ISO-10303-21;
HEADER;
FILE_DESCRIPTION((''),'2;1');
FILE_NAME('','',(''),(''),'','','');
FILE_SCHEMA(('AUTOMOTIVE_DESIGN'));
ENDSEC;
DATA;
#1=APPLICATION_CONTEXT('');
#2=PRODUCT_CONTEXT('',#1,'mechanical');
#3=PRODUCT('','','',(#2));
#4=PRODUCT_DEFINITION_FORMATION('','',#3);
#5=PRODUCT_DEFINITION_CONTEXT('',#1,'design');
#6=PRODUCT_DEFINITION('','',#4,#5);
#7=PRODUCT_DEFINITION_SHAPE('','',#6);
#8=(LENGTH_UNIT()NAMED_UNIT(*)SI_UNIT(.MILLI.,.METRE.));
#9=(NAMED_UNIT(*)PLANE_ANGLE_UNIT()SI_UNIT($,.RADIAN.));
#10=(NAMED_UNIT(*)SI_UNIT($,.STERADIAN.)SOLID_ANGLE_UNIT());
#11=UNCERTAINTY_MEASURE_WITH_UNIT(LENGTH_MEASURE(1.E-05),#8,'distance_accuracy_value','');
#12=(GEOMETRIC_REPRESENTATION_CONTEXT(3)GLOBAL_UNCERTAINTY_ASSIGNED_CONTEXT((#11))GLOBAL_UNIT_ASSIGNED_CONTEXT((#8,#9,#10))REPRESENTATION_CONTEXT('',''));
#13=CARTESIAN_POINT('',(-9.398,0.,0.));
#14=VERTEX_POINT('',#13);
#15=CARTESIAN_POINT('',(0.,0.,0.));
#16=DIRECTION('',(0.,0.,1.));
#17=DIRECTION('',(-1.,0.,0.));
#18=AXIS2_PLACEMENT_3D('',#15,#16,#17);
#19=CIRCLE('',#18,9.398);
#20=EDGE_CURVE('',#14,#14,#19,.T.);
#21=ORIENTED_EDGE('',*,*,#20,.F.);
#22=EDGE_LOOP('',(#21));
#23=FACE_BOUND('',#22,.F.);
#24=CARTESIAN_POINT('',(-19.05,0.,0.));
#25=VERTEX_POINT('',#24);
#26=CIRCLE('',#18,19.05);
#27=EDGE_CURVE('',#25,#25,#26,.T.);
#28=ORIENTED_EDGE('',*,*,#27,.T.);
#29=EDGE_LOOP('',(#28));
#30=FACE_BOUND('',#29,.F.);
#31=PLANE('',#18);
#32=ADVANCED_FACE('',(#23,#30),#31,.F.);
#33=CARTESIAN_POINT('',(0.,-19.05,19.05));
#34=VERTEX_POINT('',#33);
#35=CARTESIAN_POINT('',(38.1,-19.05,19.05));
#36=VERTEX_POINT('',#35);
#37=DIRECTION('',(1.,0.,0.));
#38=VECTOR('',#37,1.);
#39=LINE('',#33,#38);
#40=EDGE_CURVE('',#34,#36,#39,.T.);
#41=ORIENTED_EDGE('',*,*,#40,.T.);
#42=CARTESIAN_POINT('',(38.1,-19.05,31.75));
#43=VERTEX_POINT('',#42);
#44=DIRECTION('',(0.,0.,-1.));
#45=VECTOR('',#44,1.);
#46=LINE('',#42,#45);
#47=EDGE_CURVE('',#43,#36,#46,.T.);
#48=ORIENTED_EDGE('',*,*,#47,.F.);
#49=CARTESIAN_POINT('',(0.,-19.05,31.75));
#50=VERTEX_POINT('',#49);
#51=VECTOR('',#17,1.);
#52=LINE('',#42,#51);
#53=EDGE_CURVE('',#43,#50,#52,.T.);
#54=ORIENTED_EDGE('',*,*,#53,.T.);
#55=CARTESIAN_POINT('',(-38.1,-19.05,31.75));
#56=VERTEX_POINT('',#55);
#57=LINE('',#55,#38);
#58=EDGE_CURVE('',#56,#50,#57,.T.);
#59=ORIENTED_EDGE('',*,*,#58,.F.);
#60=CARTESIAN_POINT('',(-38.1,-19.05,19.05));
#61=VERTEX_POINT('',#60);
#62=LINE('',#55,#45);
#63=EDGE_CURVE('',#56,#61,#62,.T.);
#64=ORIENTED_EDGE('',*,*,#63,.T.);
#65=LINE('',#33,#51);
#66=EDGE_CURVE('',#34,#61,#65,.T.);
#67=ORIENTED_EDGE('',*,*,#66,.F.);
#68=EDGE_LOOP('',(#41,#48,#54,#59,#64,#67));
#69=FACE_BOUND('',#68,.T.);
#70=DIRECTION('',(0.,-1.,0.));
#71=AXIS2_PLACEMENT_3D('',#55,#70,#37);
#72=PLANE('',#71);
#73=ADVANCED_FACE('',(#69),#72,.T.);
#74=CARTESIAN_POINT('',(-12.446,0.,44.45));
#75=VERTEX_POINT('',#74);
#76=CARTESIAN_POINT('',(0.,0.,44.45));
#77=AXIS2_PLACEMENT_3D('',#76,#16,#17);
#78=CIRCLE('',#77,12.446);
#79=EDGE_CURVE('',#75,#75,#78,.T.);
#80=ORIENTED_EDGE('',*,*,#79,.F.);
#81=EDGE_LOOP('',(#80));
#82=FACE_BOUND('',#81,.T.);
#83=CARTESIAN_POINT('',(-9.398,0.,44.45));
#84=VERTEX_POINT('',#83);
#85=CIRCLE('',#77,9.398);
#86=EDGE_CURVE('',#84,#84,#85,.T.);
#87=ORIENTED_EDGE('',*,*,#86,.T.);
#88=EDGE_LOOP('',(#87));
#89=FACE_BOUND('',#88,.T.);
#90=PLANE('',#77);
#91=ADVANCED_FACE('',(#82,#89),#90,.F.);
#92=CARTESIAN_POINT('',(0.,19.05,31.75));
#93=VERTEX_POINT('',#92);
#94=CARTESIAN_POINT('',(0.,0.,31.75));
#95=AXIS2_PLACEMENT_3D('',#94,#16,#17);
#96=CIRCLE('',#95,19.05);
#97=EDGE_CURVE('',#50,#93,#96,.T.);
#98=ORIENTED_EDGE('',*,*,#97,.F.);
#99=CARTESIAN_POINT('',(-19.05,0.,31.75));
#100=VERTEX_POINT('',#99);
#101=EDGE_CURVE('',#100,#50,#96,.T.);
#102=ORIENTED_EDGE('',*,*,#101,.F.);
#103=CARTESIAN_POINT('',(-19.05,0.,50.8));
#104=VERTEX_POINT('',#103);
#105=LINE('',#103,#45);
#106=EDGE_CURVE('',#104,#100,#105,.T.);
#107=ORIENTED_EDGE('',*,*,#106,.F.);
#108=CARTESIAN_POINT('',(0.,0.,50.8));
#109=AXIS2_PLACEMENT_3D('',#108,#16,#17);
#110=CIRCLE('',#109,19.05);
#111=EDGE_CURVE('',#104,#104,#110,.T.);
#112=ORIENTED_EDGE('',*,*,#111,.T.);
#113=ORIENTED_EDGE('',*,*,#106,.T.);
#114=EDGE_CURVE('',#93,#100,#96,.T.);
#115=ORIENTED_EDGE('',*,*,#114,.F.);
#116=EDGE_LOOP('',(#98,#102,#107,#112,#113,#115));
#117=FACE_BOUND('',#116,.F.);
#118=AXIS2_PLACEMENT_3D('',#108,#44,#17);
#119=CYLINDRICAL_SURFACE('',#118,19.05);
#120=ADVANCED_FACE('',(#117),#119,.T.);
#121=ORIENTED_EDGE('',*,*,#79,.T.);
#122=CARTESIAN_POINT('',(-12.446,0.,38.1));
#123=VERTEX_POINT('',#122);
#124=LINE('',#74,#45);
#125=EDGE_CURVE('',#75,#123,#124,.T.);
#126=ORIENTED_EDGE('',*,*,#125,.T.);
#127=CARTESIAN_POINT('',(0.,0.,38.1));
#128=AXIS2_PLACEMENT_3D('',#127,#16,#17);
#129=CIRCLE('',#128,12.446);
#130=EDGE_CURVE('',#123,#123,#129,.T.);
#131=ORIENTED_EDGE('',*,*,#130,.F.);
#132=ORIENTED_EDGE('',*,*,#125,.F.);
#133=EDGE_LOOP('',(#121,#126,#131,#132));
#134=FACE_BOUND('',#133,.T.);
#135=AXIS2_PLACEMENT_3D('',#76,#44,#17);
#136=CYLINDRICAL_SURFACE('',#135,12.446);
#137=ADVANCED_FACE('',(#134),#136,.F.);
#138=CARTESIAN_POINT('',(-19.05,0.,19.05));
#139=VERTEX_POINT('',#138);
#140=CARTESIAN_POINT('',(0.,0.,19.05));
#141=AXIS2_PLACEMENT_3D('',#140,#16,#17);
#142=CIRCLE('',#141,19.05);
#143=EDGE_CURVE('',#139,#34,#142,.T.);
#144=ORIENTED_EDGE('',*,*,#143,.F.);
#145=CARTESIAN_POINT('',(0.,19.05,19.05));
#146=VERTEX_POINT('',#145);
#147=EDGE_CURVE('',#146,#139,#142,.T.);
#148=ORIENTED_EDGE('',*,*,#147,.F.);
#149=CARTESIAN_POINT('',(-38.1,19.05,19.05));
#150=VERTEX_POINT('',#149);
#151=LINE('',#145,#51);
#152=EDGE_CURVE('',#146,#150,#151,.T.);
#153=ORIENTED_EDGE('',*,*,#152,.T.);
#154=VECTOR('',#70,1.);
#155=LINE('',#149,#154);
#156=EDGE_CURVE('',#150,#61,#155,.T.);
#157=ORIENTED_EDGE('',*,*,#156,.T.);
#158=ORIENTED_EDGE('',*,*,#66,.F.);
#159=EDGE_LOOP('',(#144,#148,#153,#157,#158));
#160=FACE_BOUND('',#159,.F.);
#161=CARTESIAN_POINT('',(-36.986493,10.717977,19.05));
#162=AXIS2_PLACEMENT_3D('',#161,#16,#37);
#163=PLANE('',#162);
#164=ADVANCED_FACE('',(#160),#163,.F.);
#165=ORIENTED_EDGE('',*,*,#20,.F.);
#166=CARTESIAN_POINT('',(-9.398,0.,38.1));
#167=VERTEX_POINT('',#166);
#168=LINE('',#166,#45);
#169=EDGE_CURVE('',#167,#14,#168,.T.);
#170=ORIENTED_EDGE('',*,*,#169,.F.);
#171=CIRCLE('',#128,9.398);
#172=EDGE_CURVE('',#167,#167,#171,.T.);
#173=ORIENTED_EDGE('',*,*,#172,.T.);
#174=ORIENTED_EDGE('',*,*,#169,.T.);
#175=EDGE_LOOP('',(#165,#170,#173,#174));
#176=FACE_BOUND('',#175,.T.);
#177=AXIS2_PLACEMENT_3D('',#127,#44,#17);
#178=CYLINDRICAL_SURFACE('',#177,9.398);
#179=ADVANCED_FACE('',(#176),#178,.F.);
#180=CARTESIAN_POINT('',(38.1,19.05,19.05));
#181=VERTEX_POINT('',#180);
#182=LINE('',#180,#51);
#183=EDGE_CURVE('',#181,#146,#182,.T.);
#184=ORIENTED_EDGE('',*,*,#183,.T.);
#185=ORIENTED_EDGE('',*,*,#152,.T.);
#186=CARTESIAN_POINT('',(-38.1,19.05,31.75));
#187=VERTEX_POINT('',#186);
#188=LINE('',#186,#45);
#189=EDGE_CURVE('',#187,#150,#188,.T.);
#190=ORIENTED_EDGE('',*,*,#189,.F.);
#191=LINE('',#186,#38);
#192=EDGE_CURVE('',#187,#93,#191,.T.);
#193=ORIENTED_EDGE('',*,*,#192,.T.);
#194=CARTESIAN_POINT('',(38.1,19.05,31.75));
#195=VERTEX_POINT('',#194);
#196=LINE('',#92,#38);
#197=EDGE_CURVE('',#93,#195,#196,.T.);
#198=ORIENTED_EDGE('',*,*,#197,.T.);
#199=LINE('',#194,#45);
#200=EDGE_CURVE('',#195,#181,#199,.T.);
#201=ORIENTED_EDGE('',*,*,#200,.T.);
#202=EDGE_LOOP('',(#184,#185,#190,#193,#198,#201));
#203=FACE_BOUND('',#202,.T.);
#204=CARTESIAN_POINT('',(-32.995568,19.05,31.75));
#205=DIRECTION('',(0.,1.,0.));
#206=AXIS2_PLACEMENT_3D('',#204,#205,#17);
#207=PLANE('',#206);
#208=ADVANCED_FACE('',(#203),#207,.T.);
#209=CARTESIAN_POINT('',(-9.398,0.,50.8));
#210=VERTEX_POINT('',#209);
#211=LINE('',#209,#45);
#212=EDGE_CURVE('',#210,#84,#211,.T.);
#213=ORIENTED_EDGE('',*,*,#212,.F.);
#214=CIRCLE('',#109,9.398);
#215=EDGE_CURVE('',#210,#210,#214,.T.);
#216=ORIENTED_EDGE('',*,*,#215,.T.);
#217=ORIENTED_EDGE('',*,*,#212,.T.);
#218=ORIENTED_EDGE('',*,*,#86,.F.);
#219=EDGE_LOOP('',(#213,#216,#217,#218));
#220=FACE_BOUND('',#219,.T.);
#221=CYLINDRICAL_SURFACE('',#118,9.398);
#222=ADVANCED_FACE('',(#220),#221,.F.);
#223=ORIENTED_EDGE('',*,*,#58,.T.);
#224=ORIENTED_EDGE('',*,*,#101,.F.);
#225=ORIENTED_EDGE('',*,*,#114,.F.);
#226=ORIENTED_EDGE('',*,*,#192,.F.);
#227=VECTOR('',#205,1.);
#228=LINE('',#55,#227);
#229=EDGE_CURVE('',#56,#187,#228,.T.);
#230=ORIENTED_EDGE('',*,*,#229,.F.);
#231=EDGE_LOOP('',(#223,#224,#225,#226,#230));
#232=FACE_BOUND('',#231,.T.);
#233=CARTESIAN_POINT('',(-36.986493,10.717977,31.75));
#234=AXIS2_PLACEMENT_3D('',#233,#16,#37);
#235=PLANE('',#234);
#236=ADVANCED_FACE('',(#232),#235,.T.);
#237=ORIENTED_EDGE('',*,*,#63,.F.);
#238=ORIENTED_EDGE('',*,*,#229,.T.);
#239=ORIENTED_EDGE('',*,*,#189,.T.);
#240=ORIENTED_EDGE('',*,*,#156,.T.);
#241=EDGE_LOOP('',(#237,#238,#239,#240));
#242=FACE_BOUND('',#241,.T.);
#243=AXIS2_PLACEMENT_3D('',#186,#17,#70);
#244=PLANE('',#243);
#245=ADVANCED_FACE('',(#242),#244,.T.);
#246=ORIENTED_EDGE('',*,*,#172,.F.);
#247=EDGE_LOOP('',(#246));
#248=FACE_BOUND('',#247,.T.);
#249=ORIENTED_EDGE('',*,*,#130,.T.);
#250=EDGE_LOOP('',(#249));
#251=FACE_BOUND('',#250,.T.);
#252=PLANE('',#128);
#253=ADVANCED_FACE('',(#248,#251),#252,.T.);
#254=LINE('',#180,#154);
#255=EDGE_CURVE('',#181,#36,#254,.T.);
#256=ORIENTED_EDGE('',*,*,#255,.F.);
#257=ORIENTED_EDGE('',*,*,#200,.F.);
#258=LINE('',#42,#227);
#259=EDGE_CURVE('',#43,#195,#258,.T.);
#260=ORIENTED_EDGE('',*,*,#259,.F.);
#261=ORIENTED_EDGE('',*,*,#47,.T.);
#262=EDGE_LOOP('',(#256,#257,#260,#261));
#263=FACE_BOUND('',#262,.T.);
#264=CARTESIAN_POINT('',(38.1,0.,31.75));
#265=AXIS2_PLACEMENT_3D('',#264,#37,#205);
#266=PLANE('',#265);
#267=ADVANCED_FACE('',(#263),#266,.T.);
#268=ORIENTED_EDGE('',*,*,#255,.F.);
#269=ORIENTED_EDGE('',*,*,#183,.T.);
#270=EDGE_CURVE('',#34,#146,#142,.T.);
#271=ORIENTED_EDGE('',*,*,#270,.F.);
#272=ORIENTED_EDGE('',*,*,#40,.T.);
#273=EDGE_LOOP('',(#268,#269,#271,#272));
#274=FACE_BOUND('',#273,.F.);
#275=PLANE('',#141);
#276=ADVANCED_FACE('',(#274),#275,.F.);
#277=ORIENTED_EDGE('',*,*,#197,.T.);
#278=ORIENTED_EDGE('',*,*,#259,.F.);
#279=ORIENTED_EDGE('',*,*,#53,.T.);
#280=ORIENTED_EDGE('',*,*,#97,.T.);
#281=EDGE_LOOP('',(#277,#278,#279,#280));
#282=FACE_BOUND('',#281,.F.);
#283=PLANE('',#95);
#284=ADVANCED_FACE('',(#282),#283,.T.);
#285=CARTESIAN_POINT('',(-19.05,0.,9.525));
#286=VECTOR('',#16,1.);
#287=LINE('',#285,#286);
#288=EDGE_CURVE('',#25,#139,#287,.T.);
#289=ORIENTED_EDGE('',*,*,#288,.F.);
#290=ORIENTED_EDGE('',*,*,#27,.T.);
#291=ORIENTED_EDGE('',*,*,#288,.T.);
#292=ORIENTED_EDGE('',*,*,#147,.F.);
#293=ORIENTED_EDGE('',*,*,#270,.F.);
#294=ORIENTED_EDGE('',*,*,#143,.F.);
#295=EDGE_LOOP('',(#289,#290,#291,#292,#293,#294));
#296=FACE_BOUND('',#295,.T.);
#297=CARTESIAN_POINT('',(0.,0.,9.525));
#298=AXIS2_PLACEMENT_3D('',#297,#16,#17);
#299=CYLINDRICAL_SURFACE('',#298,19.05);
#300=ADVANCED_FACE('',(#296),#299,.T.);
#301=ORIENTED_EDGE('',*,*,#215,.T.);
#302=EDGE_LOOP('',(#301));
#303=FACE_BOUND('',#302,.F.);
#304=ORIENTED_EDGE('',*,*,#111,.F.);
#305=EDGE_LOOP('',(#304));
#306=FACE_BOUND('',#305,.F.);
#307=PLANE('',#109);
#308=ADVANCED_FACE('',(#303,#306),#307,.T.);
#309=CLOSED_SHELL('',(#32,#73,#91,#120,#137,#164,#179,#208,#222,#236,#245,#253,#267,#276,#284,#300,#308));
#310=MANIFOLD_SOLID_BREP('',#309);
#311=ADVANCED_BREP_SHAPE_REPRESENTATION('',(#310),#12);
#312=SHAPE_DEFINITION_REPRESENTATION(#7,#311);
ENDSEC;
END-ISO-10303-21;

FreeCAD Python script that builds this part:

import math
import FreeCAD as App
import Part
import Sketcher
from FreeCAD import Vector
Q = App.Units.Quantity

doc = App.newDocument("Part")
params = doc.addObject("Spreadsheet::Sheet", "Params")
for row, (alias, value) in enumerate([
    ("sketch1_height", "2 in"),
    ("sketch1_height2", "0.5 in"),
    ("revolution_angle", "360 deg"),
    ("sketch2_radius", "1.5 in"),
    ("pocket1_length", "1 in"),
    ("sketch3_radius", "1.5 in"),
    ("sketch3_height", "0.75 in"),
    ("pad1_length", "0.5 in"),
    ("sketch4_height", "2 in"),
    ("sketch4_height2", "1.5 in"),
    ("sketch4_width", "0.37 in"),
    ("sketch4_width2", "0.12 in"),
    ("groove_angle", "360 deg"),
], start=1):
    params.set(f"A{row}", alias)
    params.set(f"B{row}", "=" + value)
    params.setAlias(f"B{row}", alias)

body = doc.addObject("PartDesign::Body", "Body")

# Sketch on XZ plane
sketch1 = body.newObject("Sketcher::SketchObject", "Sketch")
sketch1.AttachmentSupport = (doc.getObject("XZ_Plane"), [""])
sketch1.MapMode = "FlatFace"
sketch1.addGeometry([
    Part.LineSegment(Vector(0, 0, 0), Vector(0, 51, 0)),  # 0
    Part.LineSegment(Vector(0, 51, 0), Vector(-19, 51, 0)),  # 1
    Part.LineSegment(Vector(-19, 51, 0), Vector(-19, 32, 0)),  # 2
    Part.LineSegment(Vector(-19, 32, 0), Vector(-38, 32, 0)),  # 3
    Part.LineSegment(Vector(-38, 32, 0), Vector(-38, 19, 0)),  # 4
    Part.LineSegment(Vector(-38, 19, 0), Vector(-19, 19, 0)),  # 5
    Part.LineSegment(Vector(-19, 19, 0), Vector(-19, 0, 0)),  # 6
    Part.LineSegment(Vector(-19, 0, 0), Vector(0, 0, 0)),  # 7
], False)
sketch1.addConstraint([
    Sketcher.Constraint("Coincident", 0, 2, 1, 1),
    Sketcher.Constraint("Coincident", 1, 2, 2, 1),
    Sketcher.Constraint("Coincident", 2, 2, 3, 1),
    Sketcher.Constraint("Coincident", 3, 2, 4, 1),
    Sketcher.Constraint("Coincident", 4, 2, 5, 1),
    Sketcher.Constraint("Coincident", 5, 2, 6, 1),
    Sketcher.Constraint("Coincident", 6, 2, 7, 1),
    Sketcher.Constraint("Coincident", 7, 2, 0, 1),
    Sketcher.Constraint("Vertical", 0),
    Sketcher.Constraint("Horizontal", 1),
    Sketcher.Constraint("Vertical", 2),
    Sketcher.Constraint("Horizontal", 3),
    Sketcher.Constraint("Vertical", 4),
    Sketcher.Constraint("Horizontal", 5),
    Sketcher.Constraint("Vertical", 6),
    Sketcher.Constraint("Horizontal", 7),
    Sketcher.Constraint("Coincident", 7, 2, -1, 1),
    Sketcher.Constraint("Vertical", 2, 2, 5, 2),
    Sketcher.Constraint("Equal", 1, 3),
    Sketcher.Constraint("Equal", 7, 2),
    Sketcher.Constraint("Equal", 2, 6),
    Sketcher.Constraint("DistanceY", 0, 1, 0, 2, Q("2 in")),
    Sketcher.Constraint("DistanceY", 4, 2, 4, 1, Q("0.5 in")),
])
sketch1.setExpression("Constraints[21]", "Params.sketch1_height")
sketch1.setExpression("Constraints[22]", "Params.sketch1_height2")
revolution = body.newObject("PartDesign::Revolution", "Revolution")
revolution.Profile = sketch1
revolution.ReferenceAxis = (sketch1, ["V_Axis"])
revolution.setExpression("Angle", "Params.revolution_angle")

# Sketch on XY plane
sketch2 = body.newObject("Sketcher::SketchObject", "Sketch001")
sketch2.AttachmentSupport = (doc.getObject("XY_Plane"), [""])
sketch2.MapMode = "FlatFace"
sketch2.AttachmentOffset = App.Placement(Vector(0, 0, 1.25 * 25.4), App.Rotation())
sketch2.addGeometry([
    Part.ArcOfCircle(Part.Circle(Vector(0, 0, 0), Vector(0, 0, 1), 38), math.radians(30), math.radians(150)),
    Part.LineSegment(Vector(-33, 19, 0), Vector(33, 19, 0)),
    Part.ArcOfCircle(Part.Circle(Vector(0, 0, 0), Vector(0, 0, 1), 38), math.radians(-150), math.radians(-30)),
    Part.LineSegment(Vector(33, -19, 0), Vector(-33, -19, 0)),
], False)
sketch2.addConstraint([
    Sketcher.Constraint("Coincident", 0, 1, 1, 2),
    Sketcher.Constraint("Coincident", 1, 1, 0, 2),
    Sketcher.Constraint("Coincident", 2, 1, 3, 2),
    Sketcher.Constraint("Coincident", 3, 1, 2, 2),
    Sketcher.Constraint("Horizontal", 1),
    Sketcher.Constraint("Horizontal", 3),
    Sketcher.Constraint("Coincident", 0, 3, -1, 1),
    Sketcher.Constraint("Coincident", 2, 3, -1, 1),
    Sketcher.Constraint("Equal", 0, 2),
    Sketcher.Constraint("Vertical", 1, 1, 2, 1),
    Sketcher.Constraint("Radius", 0, Q("1.5 in")),
    Sketcher.Constraint("DistanceY", 2, 1, 1, 1, Q("1.5 in")),
])
sketch2.setExpression("Constraints[10]", "Params.sketch2_radius")
pocket1 = body.newObject("PartDesign::Pocket", "Pocket")
pocket1.Profile = sketch2
pocket1.setExpression("Length", "Params.pocket1_length")

# Sketch on XY plane
sketch3 = body.newObject("Sketcher::SketchObject", "Sketch002")
sketch3.AttachmentSupport = (doc.getObject("XY_Plane"), [""])
sketch3.MapMode = "FlatFace"
sketch3.AttachmentOffset = App.Placement(Vector(0, 0, 1.25 * 25.4), App.Rotation())
sketch3.addGeometry([
    Part.LineSegment(Vector(-38, 19, 0), Vector(-38, 0, 0)),  # 0
    Part.ArcOfCircle(Part.Circle(Vector(0, 0, 0), Vector(0, 0, 1), 38), math.radians(150), math.radians(180)),  # 1
    Part.LineSegment(Vector(-33, 19, 0), Vector(-38, 19, 0)),  # 2
    Part.ArcOfCircle(Part.Circle(Vector(0, 0, 0), Vector(0, 0, 1), 38), math.radians(180), math.radians(210)),  # 3
    Part.LineSegment(Vector(-38, 0, 0), Vector(-38, -19, 0)),  # 4
    Part.LineSegment(Vector(-38, -19, 0), Vector(-33, -19, 0)),  # 5
    Part.ArcOfCircle(Part.Circle(Vector(0, 0, 0), Vector(0, 0, 1), 38), math.radians(0), math.radians(30)),  # 6
    Part.LineSegment(Vector(38, 0, 0), Vector(38, 19, 0)),  # 7
    Part.LineSegment(Vector(38, 19, 0), Vector(33, 19, 0)),  # 8
    Part.LineSegment(Vector(38, -19, 0), Vector(38, 0, 0)),  # 9
    Part.ArcOfCircle(Part.Circle(Vector(0, 0, 0), Vector(0, 0, 1), 38), math.radians(-30), math.radians(0)),  # 10
    Part.LineSegment(Vector(33, -19, 0), Vector(38, -19, 0)),  # 11
], False)
sketch3.addConstraint([
    Sketcher.Constraint("Tangent", 0, 2, 1, 2),
    Sketcher.Constraint("Coincident", 1, 1, 2, 1),
    Sketcher.Constraint("Coincident", 2, 2, 0, 1),
    Sketcher.Constraint("Tangent", 3, 1, 4, 1),
    Sketcher.Constraint("Coincident", 4, 2, 5, 1),
    Sketcher.Constraint("Coincident", 5, 2, 3, 2),
    Sketcher.Constraint("Tangent", 6, 1, 7, 1),
    Sketcher.Constraint("Coincident", 7, 2, 8, 1),
    Sketcher.Constraint("Coincident", 8, 2, 6, 2),
    Sketcher.Constraint("Tangent", 9, 2, 10, 2),
    Sketcher.Constraint("Coincident", 10, 1, 11, 1),
    Sketcher.Constraint("Coincident", 11, 2, 9, 1),
    Sketcher.Constraint("Vertical", 0),
    Sketcher.Constraint("Horizontal", 2),
    Sketcher.Constraint("Vertical", 4),
    Sketcher.Constraint("Horizontal", 5),
    Sketcher.Constraint("Vertical", 7),
    Sketcher.Constraint("Horizontal", 8),
    Sketcher.Constraint("Vertical", 9),
    Sketcher.Constraint("Horizontal", 11),
    Sketcher.Constraint("Coincident", 1, 3, -1, 1),
    Sketcher.Constraint("Coincident", 3, 3, -1, 1),
    Sketcher.Constraint("Coincident", 6, 3, -1, 1),
    Sketcher.Constraint("Coincident", 10, 3, -1, 1),
    Sketcher.Constraint("Equal", 1, 3),
    Sketcher.Constraint("Equal", 3, 6),
    Sketcher.Constraint("Equal", 6, 10),
    Sketcher.Constraint("Horizontal", 2, 2, 7, 2),
    Sketcher.Constraint("Horizontal", 5, 2, 10, 1),
    Sketcher.Constraint("Vertical", 1, 1, 5, 2),
    Sketcher.Constraint("Radius", 1, Q("1.5 in")),
    Sketcher.Constraint("DistanceY", 0, 2, 0, 1, Q("0.75 in")),
])
sketch3.setExpression("Constraints[30]", "Params.sketch3_radius")
sketch3.setExpression("Constraints[31]", "Params.sketch3_height")
pad1 = body.newObject("PartDesign::Pad", "Pad")
pad1.Profile = sketch3
pad1.setExpression("Length", "Params.pad1_length")
pad1.Reversed = True

# Sketch on XZ plane
sketch4 = body.newObject("Sketcher::SketchObject", "Sketch003")
sketch4.AttachmentSupport = (doc.getObject("XZ_Plane"), [""])
sketch4.MapMode = "FlatFace"
sketch4.addGeometry([
    Part.LineSegment(Vector(0, 50.8, 0), Vector(-9.4, 50.8, 0)),  # 0
    Part.LineSegment(Vector(-9.4, 50.8, 0), Vector(-9.4, 44.5, 0)),  # 1
    Part.LineSegment(Vector(-9.4, 44.5, 0), Vector(-12.4, 44.5, 0)),  # 2
    Part.LineSegment(Vector(-12.4, 44.5, 0), Vector(-12.4, 38.1, 0)),  # 3
    Part.LineSegment(Vector(-12.4, 38.1, 0), Vector(-9.4, 38.1, 0)),  # 4
    Part.LineSegment(Vector(-9.4, 38.1, 0), Vector(-9.4, 0, 0)),  # 5
    Part.LineSegment(Vector(-9.4, 0, 0), Vector(0, 0, 0)),  # 6
    Part.LineSegment(Vector(0, 0, 0), Vector(0, 50.8, 0)),  # 7
], False)
sketch4.addConstraint([
    Sketcher.Constraint("Coincident", 0, 2, 1, 1),
    Sketcher.Constraint("Coincident", 1, 2, 2, 1),
    Sketcher.Constraint("Coincident", 2, 2, 3, 1),
    Sketcher.Constraint("Coincident", 3, 2, 4, 1),
    Sketcher.Constraint("Coincident", 4, 2, 5, 1),
    Sketcher.Constraint("Coincident", 5, 2, 6, 1),
    Sketcher.Constraint("Coincident", 6, 2, 7, 1),
    Sketcher.Constraint("Coincident", 7, 2, 0, 1),
    Sketcher.Constraint("Horizontal", 0),
    Sketcher.Constraint("Vertical", 1),
    Sketcher.Constraint("Horizontal", 2),
    Sketcher.Constraint("Vertical", 3),
    Sketcher.Constraint("Horizontal", 4),
    Sketcher.Constraint("Vertical", 5),
    Sketcher.Constraint("Horizontal", 6),
    Sketcher.Constraint("Vertical", 7),
    Sketcher.Constraint("Coincident", 6, 2, -1, 1),
    Sketcher.Constraint("Vertical", 1, 2, 4, 2),
    Sketcher.Constraint("Equal", 1, 3),
    Sketcher.Constraint("DistanceY", 7, 1, 7, 2, Q("2 in")),
    Sketcher.Constraint("DistanceY", 5, 2, 5, 1, Q("1.5 in")),
    Sketcher.Constraint("DistanceX", 0, 2, 0, 1, Q("0.37 in")),
    Sketcher.Constraint("DistanceX", 2, 2, 2, 1, Q("0.12 in")),
])
sketch4.setExpression("Constraints[19]", "Params.sketch4_height")
sketch4.setExpression("Constraints[20]", "Params.sketch4_height2")
sketch4.setExpression("Constraints[21]", "Params.sketch4_width")
sketch4.setExpression("Constraints[22]", "Params.sketch4_width2")
groove = body.newObject("PartDesign::Groove", "Groove")
groove.Profile = sketch4
groove.ReferenceAxis = (sketch4, ["V_Axis"])
groove.setExpression("Angle", "Params.groove_angle")

doc.recompute()
